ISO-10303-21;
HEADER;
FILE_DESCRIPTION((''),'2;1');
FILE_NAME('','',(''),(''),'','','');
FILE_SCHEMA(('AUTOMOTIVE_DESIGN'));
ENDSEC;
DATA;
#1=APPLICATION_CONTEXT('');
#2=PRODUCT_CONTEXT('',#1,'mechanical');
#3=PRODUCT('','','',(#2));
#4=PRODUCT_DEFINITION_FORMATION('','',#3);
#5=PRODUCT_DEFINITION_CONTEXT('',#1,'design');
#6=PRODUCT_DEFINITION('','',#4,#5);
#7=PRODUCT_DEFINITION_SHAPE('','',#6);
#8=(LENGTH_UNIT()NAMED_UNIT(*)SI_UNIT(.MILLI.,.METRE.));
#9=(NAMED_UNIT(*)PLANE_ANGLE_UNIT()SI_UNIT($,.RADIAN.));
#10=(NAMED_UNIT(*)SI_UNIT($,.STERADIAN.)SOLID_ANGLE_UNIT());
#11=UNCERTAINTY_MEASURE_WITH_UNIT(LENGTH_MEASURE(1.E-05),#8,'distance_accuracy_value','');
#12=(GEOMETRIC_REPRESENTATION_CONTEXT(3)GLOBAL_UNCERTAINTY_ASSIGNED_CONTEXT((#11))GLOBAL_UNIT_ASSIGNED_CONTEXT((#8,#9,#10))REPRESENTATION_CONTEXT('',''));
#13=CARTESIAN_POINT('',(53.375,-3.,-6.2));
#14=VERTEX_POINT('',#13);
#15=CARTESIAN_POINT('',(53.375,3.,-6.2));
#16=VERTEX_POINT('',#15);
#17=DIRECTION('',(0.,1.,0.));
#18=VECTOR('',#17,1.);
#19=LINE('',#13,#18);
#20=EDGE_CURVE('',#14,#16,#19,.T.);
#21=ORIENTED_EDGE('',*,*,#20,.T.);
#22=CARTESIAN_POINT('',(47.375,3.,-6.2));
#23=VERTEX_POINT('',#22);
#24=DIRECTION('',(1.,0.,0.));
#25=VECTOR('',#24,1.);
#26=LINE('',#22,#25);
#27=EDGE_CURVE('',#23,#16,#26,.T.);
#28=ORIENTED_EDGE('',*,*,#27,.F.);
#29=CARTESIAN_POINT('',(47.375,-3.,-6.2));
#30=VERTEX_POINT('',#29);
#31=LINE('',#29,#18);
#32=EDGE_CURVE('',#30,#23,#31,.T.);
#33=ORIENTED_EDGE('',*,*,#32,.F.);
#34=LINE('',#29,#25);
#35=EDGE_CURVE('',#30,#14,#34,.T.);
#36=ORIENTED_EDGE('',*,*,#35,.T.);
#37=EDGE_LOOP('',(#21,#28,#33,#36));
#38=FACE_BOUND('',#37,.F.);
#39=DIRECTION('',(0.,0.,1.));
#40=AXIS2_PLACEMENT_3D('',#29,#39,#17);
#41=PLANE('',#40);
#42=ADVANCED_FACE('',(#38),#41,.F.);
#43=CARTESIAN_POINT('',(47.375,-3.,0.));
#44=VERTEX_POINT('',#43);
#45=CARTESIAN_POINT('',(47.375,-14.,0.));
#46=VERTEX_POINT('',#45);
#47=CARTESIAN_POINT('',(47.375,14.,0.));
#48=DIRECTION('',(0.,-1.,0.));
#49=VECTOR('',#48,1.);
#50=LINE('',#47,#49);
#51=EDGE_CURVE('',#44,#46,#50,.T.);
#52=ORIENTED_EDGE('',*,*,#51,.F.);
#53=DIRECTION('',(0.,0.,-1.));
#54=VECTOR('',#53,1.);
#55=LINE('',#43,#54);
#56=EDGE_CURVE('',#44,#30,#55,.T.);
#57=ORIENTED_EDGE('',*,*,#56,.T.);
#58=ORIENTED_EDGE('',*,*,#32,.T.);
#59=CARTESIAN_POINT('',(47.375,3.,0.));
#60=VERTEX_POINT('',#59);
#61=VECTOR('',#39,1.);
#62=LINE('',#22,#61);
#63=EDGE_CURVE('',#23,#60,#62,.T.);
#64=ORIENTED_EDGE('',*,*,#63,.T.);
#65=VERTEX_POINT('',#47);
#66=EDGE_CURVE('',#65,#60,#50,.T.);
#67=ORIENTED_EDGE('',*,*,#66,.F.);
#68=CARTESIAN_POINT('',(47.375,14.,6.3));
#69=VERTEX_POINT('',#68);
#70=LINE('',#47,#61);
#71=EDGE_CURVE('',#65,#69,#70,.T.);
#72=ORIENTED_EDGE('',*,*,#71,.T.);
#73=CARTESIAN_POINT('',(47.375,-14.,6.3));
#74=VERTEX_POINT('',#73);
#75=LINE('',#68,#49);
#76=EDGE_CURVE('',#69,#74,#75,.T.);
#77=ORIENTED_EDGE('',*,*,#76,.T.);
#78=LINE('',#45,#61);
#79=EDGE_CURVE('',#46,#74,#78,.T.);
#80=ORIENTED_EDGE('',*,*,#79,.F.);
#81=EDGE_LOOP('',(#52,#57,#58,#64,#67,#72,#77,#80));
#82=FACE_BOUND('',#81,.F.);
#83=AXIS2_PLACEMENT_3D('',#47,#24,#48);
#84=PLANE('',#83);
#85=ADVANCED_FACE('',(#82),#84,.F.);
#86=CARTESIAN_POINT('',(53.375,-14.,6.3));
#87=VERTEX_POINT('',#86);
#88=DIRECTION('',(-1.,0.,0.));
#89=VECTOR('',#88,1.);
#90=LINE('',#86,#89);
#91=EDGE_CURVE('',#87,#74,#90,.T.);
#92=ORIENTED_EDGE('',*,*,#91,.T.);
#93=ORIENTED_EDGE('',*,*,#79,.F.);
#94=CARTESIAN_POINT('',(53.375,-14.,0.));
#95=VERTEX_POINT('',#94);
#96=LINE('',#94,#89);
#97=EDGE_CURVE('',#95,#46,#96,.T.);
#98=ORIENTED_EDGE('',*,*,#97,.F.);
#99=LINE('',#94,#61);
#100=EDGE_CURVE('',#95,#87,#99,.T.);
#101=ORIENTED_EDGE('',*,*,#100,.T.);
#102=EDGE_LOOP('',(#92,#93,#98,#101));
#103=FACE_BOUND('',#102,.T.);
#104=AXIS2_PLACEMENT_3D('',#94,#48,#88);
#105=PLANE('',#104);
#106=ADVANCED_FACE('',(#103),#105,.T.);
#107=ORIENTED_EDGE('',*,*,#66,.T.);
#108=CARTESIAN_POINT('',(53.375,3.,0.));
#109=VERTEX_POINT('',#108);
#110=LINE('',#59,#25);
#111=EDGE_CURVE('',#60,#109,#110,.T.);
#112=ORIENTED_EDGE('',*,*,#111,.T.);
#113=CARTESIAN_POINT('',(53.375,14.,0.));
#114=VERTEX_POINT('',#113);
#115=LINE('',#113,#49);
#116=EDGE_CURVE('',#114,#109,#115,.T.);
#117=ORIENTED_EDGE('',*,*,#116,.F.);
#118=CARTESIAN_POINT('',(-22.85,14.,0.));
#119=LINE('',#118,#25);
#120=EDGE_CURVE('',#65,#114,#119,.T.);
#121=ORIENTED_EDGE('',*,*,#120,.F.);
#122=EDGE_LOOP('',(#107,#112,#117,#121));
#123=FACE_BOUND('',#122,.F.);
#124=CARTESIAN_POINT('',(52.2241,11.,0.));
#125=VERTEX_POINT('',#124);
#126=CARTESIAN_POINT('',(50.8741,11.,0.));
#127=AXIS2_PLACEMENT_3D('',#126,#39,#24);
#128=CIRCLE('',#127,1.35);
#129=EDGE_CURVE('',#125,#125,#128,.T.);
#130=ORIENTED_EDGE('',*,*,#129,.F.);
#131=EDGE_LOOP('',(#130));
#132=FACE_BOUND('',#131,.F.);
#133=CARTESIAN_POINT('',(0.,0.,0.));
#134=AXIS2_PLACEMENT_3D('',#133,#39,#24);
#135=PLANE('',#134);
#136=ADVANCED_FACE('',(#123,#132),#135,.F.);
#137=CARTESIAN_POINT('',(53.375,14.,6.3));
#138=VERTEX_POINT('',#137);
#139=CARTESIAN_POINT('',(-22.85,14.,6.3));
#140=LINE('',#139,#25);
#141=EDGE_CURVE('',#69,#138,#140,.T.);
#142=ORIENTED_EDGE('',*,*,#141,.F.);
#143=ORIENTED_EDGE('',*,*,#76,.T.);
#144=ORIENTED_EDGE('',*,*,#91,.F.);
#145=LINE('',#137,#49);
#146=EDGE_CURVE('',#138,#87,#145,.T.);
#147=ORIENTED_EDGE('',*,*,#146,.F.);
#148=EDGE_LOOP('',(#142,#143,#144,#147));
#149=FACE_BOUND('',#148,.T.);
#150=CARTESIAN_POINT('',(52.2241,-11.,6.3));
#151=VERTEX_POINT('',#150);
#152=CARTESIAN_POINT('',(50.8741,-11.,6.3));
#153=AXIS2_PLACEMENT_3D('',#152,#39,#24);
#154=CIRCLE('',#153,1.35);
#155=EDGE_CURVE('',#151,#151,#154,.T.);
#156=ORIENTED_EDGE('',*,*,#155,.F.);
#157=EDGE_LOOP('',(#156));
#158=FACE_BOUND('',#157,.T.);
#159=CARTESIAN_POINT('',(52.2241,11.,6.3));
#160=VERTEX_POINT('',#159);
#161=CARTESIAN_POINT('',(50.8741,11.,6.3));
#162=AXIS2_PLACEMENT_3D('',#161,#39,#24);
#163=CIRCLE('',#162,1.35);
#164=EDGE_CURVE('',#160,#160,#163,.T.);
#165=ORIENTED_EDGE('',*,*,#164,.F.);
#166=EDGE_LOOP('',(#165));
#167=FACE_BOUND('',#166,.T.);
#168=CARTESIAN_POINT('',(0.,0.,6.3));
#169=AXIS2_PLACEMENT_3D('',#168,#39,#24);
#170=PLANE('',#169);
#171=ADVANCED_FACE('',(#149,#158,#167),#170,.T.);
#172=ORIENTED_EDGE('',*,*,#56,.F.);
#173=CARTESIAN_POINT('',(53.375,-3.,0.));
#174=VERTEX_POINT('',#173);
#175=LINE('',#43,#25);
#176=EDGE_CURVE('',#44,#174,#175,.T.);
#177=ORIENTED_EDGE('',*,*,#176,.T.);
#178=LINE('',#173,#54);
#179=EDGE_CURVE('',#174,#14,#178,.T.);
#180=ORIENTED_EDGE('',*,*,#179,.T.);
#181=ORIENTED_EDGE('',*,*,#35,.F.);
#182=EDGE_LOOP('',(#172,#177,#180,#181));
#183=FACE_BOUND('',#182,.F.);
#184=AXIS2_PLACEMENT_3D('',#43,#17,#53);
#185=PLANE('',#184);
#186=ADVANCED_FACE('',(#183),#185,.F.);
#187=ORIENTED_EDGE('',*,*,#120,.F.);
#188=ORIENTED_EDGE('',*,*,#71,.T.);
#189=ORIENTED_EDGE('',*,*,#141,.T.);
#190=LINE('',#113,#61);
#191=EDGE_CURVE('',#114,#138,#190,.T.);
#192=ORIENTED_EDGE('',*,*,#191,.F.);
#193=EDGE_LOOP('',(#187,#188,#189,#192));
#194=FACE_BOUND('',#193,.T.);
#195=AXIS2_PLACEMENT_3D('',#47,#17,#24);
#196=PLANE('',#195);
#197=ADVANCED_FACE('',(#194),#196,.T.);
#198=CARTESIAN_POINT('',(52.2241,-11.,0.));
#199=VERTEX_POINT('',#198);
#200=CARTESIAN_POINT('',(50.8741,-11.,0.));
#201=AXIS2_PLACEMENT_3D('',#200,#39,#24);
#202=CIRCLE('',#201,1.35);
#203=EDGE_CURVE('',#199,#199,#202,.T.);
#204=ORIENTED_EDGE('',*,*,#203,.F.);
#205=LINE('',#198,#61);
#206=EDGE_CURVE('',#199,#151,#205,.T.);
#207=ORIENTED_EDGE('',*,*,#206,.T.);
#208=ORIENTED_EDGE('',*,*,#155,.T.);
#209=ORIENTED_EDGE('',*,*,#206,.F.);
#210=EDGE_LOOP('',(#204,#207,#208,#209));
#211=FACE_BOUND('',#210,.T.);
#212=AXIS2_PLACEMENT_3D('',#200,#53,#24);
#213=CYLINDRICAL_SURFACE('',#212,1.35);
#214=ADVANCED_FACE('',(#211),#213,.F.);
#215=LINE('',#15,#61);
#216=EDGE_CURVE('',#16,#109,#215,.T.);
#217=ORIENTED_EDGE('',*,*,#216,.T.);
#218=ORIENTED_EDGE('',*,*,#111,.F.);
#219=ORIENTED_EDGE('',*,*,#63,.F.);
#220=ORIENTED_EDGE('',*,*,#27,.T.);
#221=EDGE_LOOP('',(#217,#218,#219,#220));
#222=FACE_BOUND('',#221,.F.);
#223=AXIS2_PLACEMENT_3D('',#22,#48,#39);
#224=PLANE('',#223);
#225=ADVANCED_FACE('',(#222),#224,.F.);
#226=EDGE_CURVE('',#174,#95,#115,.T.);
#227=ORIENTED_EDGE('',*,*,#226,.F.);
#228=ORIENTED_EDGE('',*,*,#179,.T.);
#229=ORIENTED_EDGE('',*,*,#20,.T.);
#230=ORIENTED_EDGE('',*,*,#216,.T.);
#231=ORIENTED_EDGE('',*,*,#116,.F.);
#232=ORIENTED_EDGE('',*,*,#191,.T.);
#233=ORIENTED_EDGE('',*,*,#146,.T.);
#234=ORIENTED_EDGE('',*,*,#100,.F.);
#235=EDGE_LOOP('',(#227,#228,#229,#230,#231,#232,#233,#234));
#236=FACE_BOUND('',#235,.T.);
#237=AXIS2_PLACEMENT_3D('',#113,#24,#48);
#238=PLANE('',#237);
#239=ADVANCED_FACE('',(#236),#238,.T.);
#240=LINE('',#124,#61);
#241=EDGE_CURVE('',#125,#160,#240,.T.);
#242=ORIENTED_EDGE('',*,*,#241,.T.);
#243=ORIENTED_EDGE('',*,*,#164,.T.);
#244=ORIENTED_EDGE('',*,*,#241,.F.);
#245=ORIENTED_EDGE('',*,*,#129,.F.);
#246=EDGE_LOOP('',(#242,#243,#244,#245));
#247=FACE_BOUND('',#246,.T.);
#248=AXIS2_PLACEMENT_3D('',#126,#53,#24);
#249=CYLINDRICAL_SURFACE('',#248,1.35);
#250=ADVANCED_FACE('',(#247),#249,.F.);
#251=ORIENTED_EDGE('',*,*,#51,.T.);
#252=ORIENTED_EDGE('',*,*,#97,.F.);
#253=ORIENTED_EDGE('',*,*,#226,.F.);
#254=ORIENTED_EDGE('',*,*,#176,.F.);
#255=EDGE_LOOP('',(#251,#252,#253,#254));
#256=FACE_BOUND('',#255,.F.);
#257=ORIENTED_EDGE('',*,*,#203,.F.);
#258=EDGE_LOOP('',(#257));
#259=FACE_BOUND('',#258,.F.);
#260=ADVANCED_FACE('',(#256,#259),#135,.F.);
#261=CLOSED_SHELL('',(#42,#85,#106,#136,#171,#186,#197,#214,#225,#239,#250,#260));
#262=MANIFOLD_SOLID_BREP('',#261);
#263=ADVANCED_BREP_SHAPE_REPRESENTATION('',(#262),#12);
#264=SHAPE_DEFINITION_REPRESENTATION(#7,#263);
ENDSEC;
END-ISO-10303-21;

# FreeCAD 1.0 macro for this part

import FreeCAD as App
import Part
import Sketcher
from FreeCAD import Vector
Q = App.Units.Quantity

doc = App.newDocument("Part")
body = doc.addObject("PartDesign::Body", "Body")

# Sketch on XY plane
sketch1 = doc.addObject("Sketcher::SketchObject", "Sketch")
body.addObject(sketch1)
sketch1.AttachmentSupport = (doc.XY_Plane, [""])
sketch1.MapMode = "FlatFace"
sketch1.addGeometry(Part.LineSegment(Vector(53.4, 14, 0), Vector(47.4, 14, 0)), False)
sketch1.addGeometry(Part.LineSegment(Vector(47.4, 14, 0), Vector(47.4, -14, 0)), False)
sketch1.addGeometry(Part.LineSegment(Vector(47.4, -14, 0), Vector(53.4, -14, 0)), False)
sketch1.addGeometry(Part.LineSegment(Vector(53.4, -14, 0), Vector(53.4, 14, 0)), False)
sketch1.addGeometry(Part.Circle(Vector(50.9, -11, 0), Vector(0, 0, 1), 1.4), False)
sketch1.addGeometry(Part.Circle(Vector(50.9, 11, 0), Vector(0, 0, 1), 1.4), False)
sketch1.addConstraint(Sketcher.Constraint("Coincident", 0, 2, 1, 1))
sketch1.addConstraint(Sketcher.Constraint("Coincident", 1, 2, 2, 1))
sketch1.addConstraint(Sketcher.Constraint("Coincident", 2, 2, 3, 1))
sketch1.addConstraint(Sketcher.Constraint("Coincident", 3, 2, 0, 1))
sketch1.addConstraint(Sketcher.Constraint("Horizontal", 0))
sketch1.addConstraint(Sketcher.Constraint("Vertical", 1))
sketch1.addConstraint(Sketcher.Constraint("Horizontal", 2))
sketch1.addConstraint(Sketcher.Constraint("Vertical", 3))
sketch1.addConstraint(Sketcher.Constraint("Equal", 4, 5))
sketch1.addConstraint(Sketcher.Constraint("Symmetric", 4, 3, 5, 3, -1))
sketch1.addConstraint(Sketcher.Constraint("DistanceX", 0, 2, 0, 1, Q("6 mm")))
sketch1.addConstraint(Sketcher.Constraint("Diameter", 4, Q("2.7 mm")))
sketch1.addConstraint(Sketcher.Constraint("DistanceY", 1, 2, 1, 1, Q("28 mm")))
sketch1.addConstraint(Sketcher.Constraint("DistanceY", 4, 3, -1, 1, Q("11 mm")))
sketch1.addConstraint(Sketcher.Constraint("DistanceY", -1, 1, 0, 2, Q("14 mm")))
sketch1.addConstraint(Sketcher.Constraint("DistanceX", -1, 1, 4, 3, Q("50.874 mm")))
sketch1.addConstraint(Sketcher.Constraint("DistanceX", -1, 1, 0, 2, Q("47.375 mm")))
pad1 = doc.addObject("PartDesign::Pad", "Pad")
body.addObject(pad1)
pad1.Profile = sketch1
pad1.Length = 6.3

# Sketch on YZ plane
sketch2 = doc.addObject("Sketcher::SketchObject", "Sketch001")
body.addObject(sketch2)
sketch2.AttachmentSupport = (doc.YZ_Plane, [""])
sketch2.MapMode = "FlatFace"
sketch2.AttachmentOffset = App.Placement(Vector(0, 0, 47.375), App.Rotation())
sketch2.addGeometry(Part.LineSegment(Vector(-3, 0, 0), Vector(3, 0, 0)), False)
sketch2.addGeometry(Part.LineSegment(Vector(3, 0, 0), Vector(3, -6, 0)), False)
sketch2.addGeometry(Part.LineSegment(Vector(3, -6, 0), Vector(-3, -6, 0)), False)
sketch2.addGeometry(Part.LineSegment(Vector(-3, -6, 0), Vector(-3, 0, 0)), False)
sketch2.addConstraint(Sketcher.Constraint("Coincident", 0, 2, 1, 1))
sketch2.addConstraint(Sketcher.Constraint("Coincident", 1, 2, 2, 1))
sketch2.addConstraint(Sketcher.Constraint("Coincident", 2, 2, 3, 1))
sketch2.addConstraint(Sketcher.Constraint("Coincident", 3, 2, 0, 1))
sketch2.addConstraint(Sketcher.Constraint("Horizontal", 0))
sketch2.addConstraint(Sketcher.Constraint("Vertical", 1))
sketch2.addConstraint(Sketcher.Constraint("Horizontal", 2))
sketch2.addConstraint(Sketcher.Constraint("Vertical", 3))
sketch2.addConstraint(Sketcher.Constraint("Symmetric", 0, 2, 3, 2, -1, 1))
sketch2.addConstraint(Sketcher.Constraint("DistanceX", -1, 1, 0, 2, Q("3 mm")))
sketch2.addConstraint(Sketcher.Constraint("DistanceY", 1, 2, 1, 1, Q("6.2 mm")))
pad2 = doc.addObject("PartDesign::Pad", "Pad001")
body.addObject(pad2)
pad2.Profile = sketch2
pad2.Length = 6

doc.recompute()
